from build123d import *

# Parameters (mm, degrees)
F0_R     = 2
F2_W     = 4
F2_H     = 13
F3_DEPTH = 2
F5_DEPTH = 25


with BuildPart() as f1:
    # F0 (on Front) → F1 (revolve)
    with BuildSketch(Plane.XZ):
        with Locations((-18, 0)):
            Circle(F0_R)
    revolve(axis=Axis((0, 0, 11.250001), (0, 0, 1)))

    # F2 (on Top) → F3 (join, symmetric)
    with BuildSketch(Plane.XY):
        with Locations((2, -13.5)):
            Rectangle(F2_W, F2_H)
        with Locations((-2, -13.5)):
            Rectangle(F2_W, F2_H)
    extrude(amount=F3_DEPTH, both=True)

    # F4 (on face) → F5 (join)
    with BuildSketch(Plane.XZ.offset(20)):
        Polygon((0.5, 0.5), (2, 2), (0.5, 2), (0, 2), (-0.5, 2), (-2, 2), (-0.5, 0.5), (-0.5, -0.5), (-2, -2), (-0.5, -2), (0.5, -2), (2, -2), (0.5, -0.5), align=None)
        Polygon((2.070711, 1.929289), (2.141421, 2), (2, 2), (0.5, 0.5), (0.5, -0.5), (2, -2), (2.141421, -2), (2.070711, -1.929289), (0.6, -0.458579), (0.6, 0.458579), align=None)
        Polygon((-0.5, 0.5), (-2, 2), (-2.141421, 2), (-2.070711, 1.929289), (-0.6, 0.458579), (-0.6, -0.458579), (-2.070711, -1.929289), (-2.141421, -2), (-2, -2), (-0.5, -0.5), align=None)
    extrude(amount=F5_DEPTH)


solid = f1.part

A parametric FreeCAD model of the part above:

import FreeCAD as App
import Part
import Sketcher
Q = App.Units.Quantity

doc = App.newDocument("Part")
body = doc.addObject("PartDesign::Body", "Body")

# Sketch on XZ plane
sketch1 = doc.addObject("Sketcher::SketchObject", "Sketch")
body.addObject(sketch1)
sketch1.AttachmentSupport = (doc.XZ_Plane, [""])
sketch1.MapMode = "FlatFace"
sketch1.addGeometry(Part.Circle(App.Vector(-18, 0, 0), App.Vector(0, 0, 1), 2), False)
sketch1.addConstraint([
    Sketcher.Constraint("PointOnObject", 0, 3, -1),
    Sketcher.Constraint("Diameter", 0, Q("4 mm")),
    Sketcher.Constraint("DistanceX", 0, 3, -1, 1, Q("18 mm")),
])
revolution = doc.addObject("PartDesign::Revolution", "Revolution")
body.addObject(revolution)
revolution.Profile = sketch1
revolution.ReferenceAxis = (sketch1, ["V_Axis"])
revolution.Angle = 360

# Sketch on XY plane
sketch2 = doc.addObject("Sketcher::SketchObject", "Sketch001")
body.addObject(sketch2)
sketch2.AttachmentSupport = (doc.XY_Plane, [""])
sketch2.MapMode = "FlatFace"
sketch2.addGeometry([
    Part.LineSegment(App.Vector(4, -20, 0), App.Vector(4, -7, 0)),
    Part.LineSegment(App.Vector(4, -7, 0), App.Vector(-4, -7, 0)),
    Part.LineSegment(App.Vector(-4, -7, 0), App.Vector(-4, -20, 0)),
    Part.LineSegment(App.Vector(-4, -20, 0), App.Vector(4, -20, 0)),
], False)
sketch2.addConstraint([
    Sketcher.Constraint("Coincident", 0, 2, 1, 1),
    Sketcher.Constraint("Coincident", 1, 2, 2, 1),
    Sketcher.Constraint("Coincident", 2, 2, 3, 1),
    Sketcher.Constraint("Coincident", 3, 2, 0, 1),
    Sketcher.Constraint("Vertical", 0),
    Sketcher.Constraint("Horizontal", 1),
    Sketcher.Constraint("Vertical", 2),
    Sketcher.Constraint("Horizontal", 3),
    Sketcher.Constraint("DistanceX", 1, 2, 1, 1, Q("8 mm")),
    Sketcher.Constraint("DistanceY", 0, 1, 0, 2, Q("13 mm")),
    Sketcher.Constraint("DistanceX", -1, 1, 0, 2, Q("4 mm")),
    Sketcher.Constraint("DistanceY", 0, 2, -1, 1, Q("7 mm")),
])
pad1 = doc.addObject("PartDesign::Pad", "Pad")
body.addObject(pad1)
pad1.Profile = sketch2
pad1.Length = 4
pad1.Midplane = True

# Sketch on XZ plane
sketch3 = doc.addObject("Sketcher::SketchObject", "Sketch002")
body.addObject(sketch3)
sketch3.AttachmentSupport = (doc.XZ_Plane, [""])
sketch3.MapMode = "FlatFace"
sketch3.AttachmentOffset = App.Placement(App.Vector(0, 0, 20), App.Rotation())
sketch3.addGeometry([
    Part.LineSegment(App.Vector(2.14, -2, 0), App.Vector(2.07, -1.93, 0)),  # 0
    Part.LineSegment(App.Vector(2.07, -1.93, 0), App.Vector(0.6, -0.46, 0)),  # 1
    Part.LineSegment(App.Vector(0.6, -0.46, 0), App.Vector(0.6, 0.46, 0)),  # 2
    Part.LineSegment(App.Vector(0.6, 0.46, 0), App.Vector(2.07, 1.93, 0)),  # 3
    Part.LineSegment(App.Vector(2.07, 1.93, 0), App.Vector(2.14, 2, 0)),  # 4
    Part.LineSegment(App.Vector(2.14, 2, 0), App.Vector(-2.14, 2, 0)),  # 5
    Part.LineSegment(App.Vector(-2.14, 2, 0), App.Vector(-2.07, 1.93, 0)),  # 6
    Part.LineSegment(App.Vector(-2.07, 1.93, 0), App.Vector(-0.6, 0.46, 0)),  # 7
    Part.LineSegment(App.Vector(-0.6, 0.46, 0), App.Vector(-0.6, -0.46, 0)),  # 8
    Part.LineSegment(App.Vector(-0.6, -0.46, 0), App.Vector(-2.07, -1.93, 0)),  # 9
    Part.LineSegment(App.Vector(-2.07, -1.93, 0), App.Vector(-2.14, -2, 0)),  # 10
    Part.LineSegment(App.Vector(-2.14, -2, 0), App.Vector(2.14, -2, 0)),  # 11
], False)
sketch3.addConstraint([
    Sketcher.Constraint("Coincident", 0, 2, 1, 1),
    Sketcher.Constraint("Coincident", 1, 2, 2, 1),
    Sketcher.Constraint("Coincident", 2, 2, 3, 1),
    Sketcher.Constraint("Coincident", 3, 2, 4, 1),
    Sketcher.Constraint("Coincident", 4, 2, 5, 1),
    Sketcher.Constraint("Coincident", 5, 2, 6, 1),
    Sketcher.Constraint("Coincident", 6, 2, 7, 1),
    Sketcher.Constraint("Coincident", 7, 2, 8, 1),
    Sketcher.Constraint("Coincident", 8, 2, 9, 1),
    Sketcher.Constraint("Coincident", 9, 2, 10, 1),
    Sketcher.Constraint("Coincident", 10, 2, 11, 1),
    Sketcher.Constraint("Coincident", 11, 2, 0, 1),
    Sketcher.Constraint("Vertical", 2),
    Sketcher.Constraint("Horizontal", 5),
    Sketcher.Constraint("Vertical", 8),
    Sketcher.Constraint("Horizontal", 11),
    Sketcher.Constraint("Symmetric", 0, 2, 6, 2, -1, 1),
    Sketcher.Constraint("Symmetric", 1, 2, 7, 2, -1, 1),
    Sketcher.Constraint("Symmetric", 3, 2, 9, 2, -1, 1),
    Sketcher.Constraint("Symmetric", 4, 2, 10, 2, -1, 1),
    Sketcher.Constraint("Symmetric", 3, 2, 6, 2, -2),
    Sketcher.Constraint("Perpendicular", 1, 3),
    Sketcher.Constraint("Parallel", 0, 6),
    Sketcher.Constraint("Perpendicular", 7, 9),
    Sketcher.Constraint("Horizontal", 2, 2, 7, 2),
    Sketcher.Constraint("Vertical", 5, 2, 10, 2),
    Sketcher.Constraint("DistanceY", -1, 1, 4, 2, Q("2 mm")),
    Sketcher.Constraint("Distance", 0, Q("0.1 mm")),
    Sketcher.Constraint("DistanceX", -1, 1, 1, 2, Q("0.6 mm")),
    Sketcher.Constraint("Distance", 1, Q("2.079899 mm")),
    Sketcher.Constraint("DistanceX", 5, 2, 5, 1, Q("4.282842 mm")),
])
pad2 = doc.addObject("PartDesign::Pad", "Pad001")
body.addObject(pad2)
pad2.Profile = sketch3
pad2.Length = 25

doc.recompute()
